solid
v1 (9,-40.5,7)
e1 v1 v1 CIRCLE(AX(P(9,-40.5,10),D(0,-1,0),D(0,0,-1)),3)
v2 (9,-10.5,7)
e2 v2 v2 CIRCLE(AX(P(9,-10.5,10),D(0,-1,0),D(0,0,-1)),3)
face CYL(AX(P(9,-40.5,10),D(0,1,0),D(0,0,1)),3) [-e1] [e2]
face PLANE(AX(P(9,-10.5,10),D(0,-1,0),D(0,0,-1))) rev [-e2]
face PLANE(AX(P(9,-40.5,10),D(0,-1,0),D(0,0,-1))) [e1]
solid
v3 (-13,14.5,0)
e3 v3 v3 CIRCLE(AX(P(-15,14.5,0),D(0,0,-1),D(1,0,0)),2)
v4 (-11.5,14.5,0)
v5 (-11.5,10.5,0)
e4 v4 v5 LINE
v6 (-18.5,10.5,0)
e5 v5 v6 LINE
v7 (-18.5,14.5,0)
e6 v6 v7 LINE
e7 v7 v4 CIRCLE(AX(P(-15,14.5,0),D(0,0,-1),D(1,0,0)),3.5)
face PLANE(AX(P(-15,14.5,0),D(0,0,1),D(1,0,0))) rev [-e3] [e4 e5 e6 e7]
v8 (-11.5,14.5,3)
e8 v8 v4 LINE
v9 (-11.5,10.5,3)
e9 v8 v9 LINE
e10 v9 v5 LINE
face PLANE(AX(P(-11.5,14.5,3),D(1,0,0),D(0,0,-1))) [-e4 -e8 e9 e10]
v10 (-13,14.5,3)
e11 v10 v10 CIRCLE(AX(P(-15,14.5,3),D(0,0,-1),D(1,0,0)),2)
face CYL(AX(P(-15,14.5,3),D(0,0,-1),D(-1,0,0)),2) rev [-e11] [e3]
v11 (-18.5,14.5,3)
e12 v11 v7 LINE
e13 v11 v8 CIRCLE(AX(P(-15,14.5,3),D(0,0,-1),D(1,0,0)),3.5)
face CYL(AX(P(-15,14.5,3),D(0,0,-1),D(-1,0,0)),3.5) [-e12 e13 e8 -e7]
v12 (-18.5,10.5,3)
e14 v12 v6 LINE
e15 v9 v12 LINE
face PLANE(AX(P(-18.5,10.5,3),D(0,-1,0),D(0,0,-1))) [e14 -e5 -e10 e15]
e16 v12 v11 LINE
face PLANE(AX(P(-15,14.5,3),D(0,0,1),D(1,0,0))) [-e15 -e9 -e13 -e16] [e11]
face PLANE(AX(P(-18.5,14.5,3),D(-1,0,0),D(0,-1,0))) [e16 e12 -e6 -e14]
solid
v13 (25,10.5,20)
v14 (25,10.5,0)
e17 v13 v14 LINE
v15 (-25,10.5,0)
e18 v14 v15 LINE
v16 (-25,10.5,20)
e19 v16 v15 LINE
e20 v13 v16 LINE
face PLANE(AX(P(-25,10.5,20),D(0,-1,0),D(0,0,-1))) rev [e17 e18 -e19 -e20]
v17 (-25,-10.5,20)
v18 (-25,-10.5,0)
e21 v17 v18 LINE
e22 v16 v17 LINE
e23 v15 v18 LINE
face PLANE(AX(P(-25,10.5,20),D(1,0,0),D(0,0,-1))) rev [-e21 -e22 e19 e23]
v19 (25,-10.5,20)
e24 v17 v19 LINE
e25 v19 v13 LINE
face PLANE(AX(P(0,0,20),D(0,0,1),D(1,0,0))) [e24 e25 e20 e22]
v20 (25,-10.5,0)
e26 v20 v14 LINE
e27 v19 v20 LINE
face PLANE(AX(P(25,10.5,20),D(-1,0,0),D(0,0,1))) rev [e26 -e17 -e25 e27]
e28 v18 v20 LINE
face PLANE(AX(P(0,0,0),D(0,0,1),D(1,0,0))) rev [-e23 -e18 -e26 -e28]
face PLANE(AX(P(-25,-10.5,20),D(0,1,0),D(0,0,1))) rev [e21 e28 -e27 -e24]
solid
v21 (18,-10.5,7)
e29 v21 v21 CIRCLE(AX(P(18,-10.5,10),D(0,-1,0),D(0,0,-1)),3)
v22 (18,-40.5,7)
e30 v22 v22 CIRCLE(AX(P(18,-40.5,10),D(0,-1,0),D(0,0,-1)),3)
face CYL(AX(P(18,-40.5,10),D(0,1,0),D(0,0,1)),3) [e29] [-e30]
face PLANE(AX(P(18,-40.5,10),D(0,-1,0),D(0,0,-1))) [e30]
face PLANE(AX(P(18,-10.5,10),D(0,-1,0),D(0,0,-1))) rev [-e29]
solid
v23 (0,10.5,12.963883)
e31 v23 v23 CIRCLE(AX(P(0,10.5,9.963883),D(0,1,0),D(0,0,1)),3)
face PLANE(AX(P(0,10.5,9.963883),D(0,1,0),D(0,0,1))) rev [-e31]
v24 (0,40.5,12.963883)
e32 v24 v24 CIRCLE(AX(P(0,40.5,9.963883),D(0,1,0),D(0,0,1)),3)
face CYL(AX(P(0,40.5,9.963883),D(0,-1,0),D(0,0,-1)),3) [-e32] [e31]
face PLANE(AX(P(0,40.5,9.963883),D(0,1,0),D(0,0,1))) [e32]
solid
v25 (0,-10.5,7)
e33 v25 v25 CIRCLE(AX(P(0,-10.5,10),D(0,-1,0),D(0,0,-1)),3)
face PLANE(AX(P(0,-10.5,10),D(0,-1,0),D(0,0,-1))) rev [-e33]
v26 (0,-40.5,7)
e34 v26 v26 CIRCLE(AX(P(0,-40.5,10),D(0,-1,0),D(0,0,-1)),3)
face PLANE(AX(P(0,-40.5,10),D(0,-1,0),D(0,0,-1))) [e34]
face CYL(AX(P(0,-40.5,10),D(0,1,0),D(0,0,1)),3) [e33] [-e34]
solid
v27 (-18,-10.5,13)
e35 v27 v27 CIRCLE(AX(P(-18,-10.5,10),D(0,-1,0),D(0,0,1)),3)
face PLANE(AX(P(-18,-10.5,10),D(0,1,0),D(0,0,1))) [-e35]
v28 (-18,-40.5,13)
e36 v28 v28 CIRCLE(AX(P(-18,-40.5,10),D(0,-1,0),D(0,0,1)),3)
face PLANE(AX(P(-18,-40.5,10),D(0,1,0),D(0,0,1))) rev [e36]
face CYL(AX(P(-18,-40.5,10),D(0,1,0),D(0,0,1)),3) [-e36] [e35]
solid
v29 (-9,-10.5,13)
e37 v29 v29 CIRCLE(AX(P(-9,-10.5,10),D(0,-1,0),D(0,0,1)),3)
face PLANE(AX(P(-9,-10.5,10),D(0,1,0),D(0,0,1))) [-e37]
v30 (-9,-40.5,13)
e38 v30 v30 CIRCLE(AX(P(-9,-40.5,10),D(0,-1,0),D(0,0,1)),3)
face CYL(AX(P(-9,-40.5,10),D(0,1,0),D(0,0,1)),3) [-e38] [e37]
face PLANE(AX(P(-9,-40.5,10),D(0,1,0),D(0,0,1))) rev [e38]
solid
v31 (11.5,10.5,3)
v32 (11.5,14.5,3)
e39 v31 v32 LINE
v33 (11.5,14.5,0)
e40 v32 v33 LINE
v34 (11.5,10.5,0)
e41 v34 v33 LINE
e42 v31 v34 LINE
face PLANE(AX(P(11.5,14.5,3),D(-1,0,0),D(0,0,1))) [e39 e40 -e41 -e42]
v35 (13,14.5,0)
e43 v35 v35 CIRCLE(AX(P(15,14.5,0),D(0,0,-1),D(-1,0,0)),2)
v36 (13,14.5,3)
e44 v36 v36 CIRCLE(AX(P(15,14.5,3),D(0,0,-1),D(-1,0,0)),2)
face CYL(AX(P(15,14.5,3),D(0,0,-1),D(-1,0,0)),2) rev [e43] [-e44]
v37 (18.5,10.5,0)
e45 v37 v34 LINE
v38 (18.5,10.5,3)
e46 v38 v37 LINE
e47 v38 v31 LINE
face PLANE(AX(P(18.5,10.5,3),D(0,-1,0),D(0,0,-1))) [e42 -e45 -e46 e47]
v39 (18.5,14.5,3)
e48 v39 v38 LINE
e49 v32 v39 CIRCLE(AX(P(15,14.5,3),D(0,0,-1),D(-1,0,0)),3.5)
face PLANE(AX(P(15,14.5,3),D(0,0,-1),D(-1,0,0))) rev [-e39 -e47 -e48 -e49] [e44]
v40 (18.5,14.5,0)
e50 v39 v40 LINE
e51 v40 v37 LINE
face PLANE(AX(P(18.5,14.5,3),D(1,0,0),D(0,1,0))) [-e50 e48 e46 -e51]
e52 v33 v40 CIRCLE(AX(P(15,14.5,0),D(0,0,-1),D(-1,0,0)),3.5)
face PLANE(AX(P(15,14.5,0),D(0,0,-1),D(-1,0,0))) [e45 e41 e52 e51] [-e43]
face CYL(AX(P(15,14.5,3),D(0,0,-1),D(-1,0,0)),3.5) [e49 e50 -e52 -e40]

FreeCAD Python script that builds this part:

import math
import FreeCAD as App
import Part
import Sketcher

V = App.Vector

doc = App.newDocument("Part")
body = doc.addObject("PartDesign::Body", "Body")

sketch1 = doc.addObject("Sketcher::SketchObject", "Sketch")
body.addObject(sketch1)
sketch1.AttachmentSupport = (doc.XY_Plane, [""])
sketch1.MapMode = "FlatFace"
sketch1.addGeometry(Part.LineSegment(V(-25, 10.5, 0), V(-25, -10.5, 0)), False)
sketch1.addGeometry(Part.LineSegment(V(-25, -10.5, 0), V(25, -10.5, 0)), False)
sketch1.addGeometry(Part.LineSegment(V(25, -10.5, 0), V(25, 10.5, 0)), False)
sketch1.addGeometry(Part.LineSegment(V(25, 10.5, 0), V(-25, 10.5, 0)), False)
sketch1.addConstraint(Sketcher.Constraint("Coincident", 0, 2, 1, 1))
sketch1.addConstraint(Sketcher.Constraint("Coincident", 1, 2, 2, 1))
sketch1.addConstraint(Sketcher.Constraint("Coincident", 2, 2, 3, 1))
sketch1.addConstraint(Sketcher.Constraint("Coincident", 3, 2, 0, 1))
sketch1.addConstraint(Sketcher.Constraint("Vertical", 0))
sketch1.addConstraint(Sketcher.Constraint("Horizontal", 1))
sketch1.addConstraint(Sketcher.Constraint("Vertical", 2))
sketch1.addConstraint(Sketcher.Constraint("Horizontal", 3))
sketch1.addConstraint(Sketcher.Constraint("Symmetric", 0, 2, 2, 2, -1, 1))
sketch1.addConstraint(Sketcher.Constraint("DistanceX", 1, 1, 1, 2, 50.0))
sketch1.addConstraint(Sketcher.Constraint("DistanceY", 0, 2, 0, 1, 21.0))
pad1 = doc.addObject("PartDesign::Pad", "Pad")
body.addObject(pad1)
pad1.Profile = sketch1
pad1.Length = 20
body2 = doc.addObject("PartDesign::Body", "Body001")

sketch2 = doc.addObject("Sketcher::SketchObject", "Sketch001")
body2.addObject(sketch2)
sketch2.AttachmentSupport = (doc.getObject("XZ_Plane001"), [""])
sketch2.MapMode = "FlatFace"
sketch2.AttachmentOffset = App.Placement(V(0, 0, 10.5), App.Rotation())
sketch2.addGeometry(Part.Circle(V(0, 10, 0), V(0, 0, 1), 3), False)
sketch2.addConstraint(Sketcher.Constraint("PointOnObject", 0, 3, -2))
sketch2.addConstraint(Sketcher.Constraint("Diameter", 0, 6.0))
sketch2.addConstraint(Sketcher.Constraint("DistanceY", -1, 1, 0, 3, 10.0))
pad2 = doc.addObject("PartDesign::Pad", "Pad001")
body2.addObject(pad2)
pad2.Profile = sketch2
pad2.Length = 30
body3 = doc.addObject("PartDesign::Body", "Body002")

sketch3 = doc.addObject("Sketcher::SketchObject", "Sketch002")
body3.addObject(sketch3)
sketch3.AttachmentSupport = (doc.getObject("XZ_Plane002"), [""])
sketch3.MapMode = "FlatFace"
sketch3.AttachmentOffset = App.Placement(V(0, 0, 10.5), App.Rotation())
sketch3.addGeometry(Part.Circle(V(9, 10, 0), V(0, 0, 1), 3), False)
sketch3.addConstraint(Sketcher.Constraint("Diameter", 0, 6.0))
sketch3.addConstraint(Sketcher.Constraint("DistanceX", -1, 1, 0, 3, 9.0))
sketch3.addConstraint(Sketcher.Constraint("DistanceY", -1, 1, 0, 3, 10.0))
pad3 = doc.addObject("PartDesign::Pad", "Pad002")
body3.addObject(pad3)
pad3.Profile = sketch3
pad3.Length = 30
body4 = doc.addObject("PartDesign::Body", "Body003")

sketch4 = doc.addObject("Sketcher::SketchObject", "Sketch003")
body4.addObject(sketch4)
sketch4.AttachmentSupport = (doc.getObject("XZ_Plane003"), [""])
sketch4.MapMode = "FlatFace"
sketch4.AttachmentOffset = App.Placement(V(0, 0, 10.5), App.Rotation())
sketch4.addGeometry(Part.Circle(V(18, 10, 0), V(0, 0, 1), 3), False)
sketch4.addConstraint(Sketcher.Constraint("Diameter", 0, 6.0))
sketch4.addConstraint(Sketcher.Constraint("DistanceX", -1, 1, 0, 3, 18.0))
sketch4.addConstraint(Sketcher.Constraint("DistanceY", -1, 1, 0, 3, 10.0))
pad4 = doc.addObject("PartDesign::Pad", "Pad003")
body4.addObject(pad4)
pad4.Profile = sketch4
pad4.Length = 30
body5 = doc.addObject("PartDesign::Body", "Body004")

sketch5 = doc.addObject("Sketcher::SketchObject", "Sketch004")
body5.addObject(sketch5)
sketch5.AttachmentSupport = (doc.getObject("XZ_Plane004"), [""])
sketch5.MapMode = "FlatFace"
sketch5.AttachmentOffset = App.Placement(V(0, 0, 10.5), App.Rotation())
sketch5.addGeometry(Part.Circle(V(-18, 10, 0), V(0, 0, 1), 3), False)
sketch5.addConstraint(Sketcher.Constraint("Diameter", 0, 6.0))
sketch5.addConstraint(Sketcher.Constraint("DistanceX", 0, 3, -1, 1, 18.0))
sketch5.addConstraint(Sketcher.Constraint("DistanceY", -1, 1, 0, 3, 10.0))
pad5 = doc.addObject("PartDesign::Pad", "Pad004")
body5.addObject(pad5)
pad5.Profile = sketch5
pad5.Length = 30
body6 = doc.addObject("PartDesign::Body", "Body005")

sketch6 = doc.addObject("Sketcher::SketchObject", "Sketch005")
body6.addObject(sketch6)
sketch6.AttachmentSupport = (doc.getObject("XZ_Plane005"), [""])
sketch6.MapMode = "FlatFace"
sketch6.AttachmentOffset = App.Placement(V(0, 0, 10.5), App.Rotation())
sketch6.addGeometry(Part.Circle(V(-9, 10, 0), V(0, 0, 1), 3), False)
sketch6.addConstraint(Sketcher.Constraint("Diameter", 0, 6.0))
sketch6.addConstraint(Sketcher.Constraint("DistanceX", 0, 3, -1, 1, 9.0))
sketch6.addConstraint(Sketcher.Constraint("DistanceY", -1, 1, 0, 3, 10.0))
pad6 = doc.addObject("PartDesign::Pad", "Pad005")
body6.addObject(pad6)
pad6.Profile = sketch6
pad6.Length = 30
body7 = doc.addObject("PartDesign::Body", "Body006")

sketch7 = doc.addObject("Sketcher::SketchObject", "Sketch006")
body7.addObject(sketch7)
sketch7.AttachmentSupport = (doc.getObject("XZ_Plane006"), [""])
sketch7.MapMode = "FlatFace"
sketch7.AttachmentOffset = App.Placement(V(0, 0, -10.5), App.Rotation())
sketch7.addGeometry(Part.Circle(V(0, 9.963883, 0), V(0, 0, 1), 3), False)
sketch7.addConstraint(Sketcher.Constraint("PointOnObject", 0, 3, -2))
sketch7.addConstraint(Sketcher.Constraint("Diameter", 0, 6.0))
sketch7.addConstraint(Sketcher.Constraint("DistanceY", -1, 1, 0, 3, 9.963883))
pad7 = doc.addObject("PartDesign::Pad", "Pad006")
body7.addObject(pad7)
pad7.Profile = sketch7
pad7.Length = 30
pad7.Reversed = True
body8 = doc.addObject("PartDesign::Body", "Body007")

sketch8 = doc.addObject("Sketcher::SketchObject", "Sketch007")
body8.addObject(sketch8)
sketch8.AttachmentSupport = (doc.getObject("XY_Plane007"), [""])
sketch8.MapMode = "FlatFace"
sketch8.addGeometry(Part.LineSegment(V(18.5, 14.5, 0), V(18.5, 10.5, 0)), False)
sketch8.addGeometry(Part.LineSegment(V(18.5, 10.5, 0), V(11.5, 10.5, 0)), False)
sketch8.addGeometry(Part.LineSegment(V(11.5, 10.5, 0), V(11.5, 14.5, 0)), False)
sketch8.addGeometry(Part.ArcOfCircle(Part.Circle(V(15, 14.5, 0), V(0, 0, 1), 3.5), math.radians(0), math.radians(180)), False)
sketch8.addGeometry(Part.Circle(V(15, 14.5, 0), V(0, 0, 1), 2), False)
sketch8.addConstraint(Sketcher.Constraint("Coincident", 0, 2, 1, 1))
sketch8.addConstraint(Sketcher.Constraint("Coincident", 1, 2, 2, 1))
sketch8.addConstraint(Sketcher.Constraint("Tangent", 2, 2, 3, 2))
sketch8.addConstraint(Sketcher.Constraint("Tangent", 3, 1, 0, 1))
sketch8.addConstraint(Sketcher.Constraint("Vertical", 0))
sketch8.addConstraint(Sketcher.Constraint("Horizontal", 1))
sketch8.addConstraint(Sketcher.Constraint("Vertical", 2))
sketch8.addConstraint(Sketcher.Constraint("Coincident", 4, 3, 3, 3))
sketch8.addConstraint(Sketcher.Constraint("Diameter", 4, 4.0))
sketch8.addConstraint(Sketcher.Constraint("Radius", 3, 3.5))
sketch8.addConstraint(Sketcher.Constraint("DistanceY", 0, 2, 0, 1, 4.0))
sketch8.addConstraint(Sketcher.Constraint("DistanceX", -1, 1, 3, 3, 15.0))
sketch8.addConstraint(Sketcher.Constraint("DistanceY", -1, 1, 3, 3, 14.5))
pad8 = doc.addObject("PartDesign::Pad", "Pad007")
body8.addObject(pad8)
pad8.Profile = sketch8
pad8.Length = 3
body9 = doc.addObject("PartDesign::Body", "Body008")

sketch9 = doc.addObject("Sketcher::SketchObject", "Sketch008")
body9.addObject(sketch9)
sketch9.AttachmentSupport = (doc.getObject("XY_Plane008"), [""])
sketch9.MapMode = "FlatFace"
sketch9.addGeometry(Part.LineSegment(V(-11.5, 10.5, 0), V(-18.5, 10.5, 0)), False)
sketch9.addGeometry(Part.LineSegment(V(-18.5, 10.5, 0), V(-18.5, 14.5, 0)), False)
sketch9.addGeometry(Part.ArcOfCircle(Part.Circle(V(-15, 14.5, 0), V(0, 0, 1), 3.5), math.radians(0), math.radians(180)), False)
sketch9.addGeometry(Part.LineSegment(V(-11.5, 14.5, 0), V(-11.5, 10.5, 0)), False)
sketch9.addGeometry(Part.Circle(V(-15, 14.5, 0), V(0, 0, 1), 2), False)
sketch9.addConstraint(Sketcher.Constraint("Coincident", 0, 2, 1, 1))
sketch9.addConstraint(Sketcher.Constraint("Tangent", 1, 2, 2, 2))
sketch9.addConstraint(Sketcher.Constraint("Tangent", 2, 1, 3, 1))
sketch9.addConstraint(Sketcher.Constraint("Coincident", 3, 2, 0, 1))
sketch9.addConstraint(Sketcher.Constraint("Horizontal", 0))
sketch9.addConstraint(Sketcher.Constraint("Vertical", 1))
sketch9.addConstraint(Sketcher.Constraint("Vertical", 3))
sketch9.addConstraint(Sketcher.Constraint("Coincident", 4, 3, 2, 3))
sketch9.addConstraint(Sketcher.Constraint("Diameter", 4, 4.0))
sketch9.addConstraint(Sketcher.Constraint("Radius", 2, 3.5))
sketch9.addConstraint(Sketcher.Constraint("DistanceY", 1, 1, 1, 2, 4.0))
sketch9.addConstraint(Sketcher.Constraint("DistanceX", 2, 3, -1, 1, 15.0))
sketch9.addConstraint(Sketcher.Constraint("DistanceY", -1, 1, 2, 3, 14.5))
pad9 = doc.addObject("PartDesign::Pad", "Pad008")
body9.addObject(pad9)
pad9.Profile = sketch9
pad9.Length = 3

doc.recompute()
